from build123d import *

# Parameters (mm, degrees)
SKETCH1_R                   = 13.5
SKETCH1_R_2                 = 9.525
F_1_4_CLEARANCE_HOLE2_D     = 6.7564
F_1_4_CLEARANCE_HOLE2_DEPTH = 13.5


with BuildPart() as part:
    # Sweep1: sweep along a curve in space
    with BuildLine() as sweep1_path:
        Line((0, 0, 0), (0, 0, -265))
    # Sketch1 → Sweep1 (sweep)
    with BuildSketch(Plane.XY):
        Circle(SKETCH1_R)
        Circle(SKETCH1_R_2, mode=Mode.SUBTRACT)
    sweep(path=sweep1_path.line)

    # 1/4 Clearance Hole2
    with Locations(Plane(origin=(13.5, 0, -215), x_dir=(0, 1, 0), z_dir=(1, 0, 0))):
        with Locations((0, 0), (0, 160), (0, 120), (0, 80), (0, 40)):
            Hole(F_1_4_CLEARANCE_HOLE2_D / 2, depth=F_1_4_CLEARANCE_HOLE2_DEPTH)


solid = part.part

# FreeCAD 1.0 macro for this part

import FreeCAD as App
import Part
import Sketcher
from FreeCAD import Vector

doc = App.newDocument("Part")
body = doc.addObject("PartDesign::Body", "Body")

# Sketch on XY plane
sketch1 = doc.addObject("Sketcher::SketchObject", "Sketch")
body.addObject(sketch1)
sketch1.AttachmentSupport = (doc.XY_Plane, [""])
sketch1.MapMode = "FlatFace"
sketch1.addGeometry(Part.Circle(Vector(0, 0, 0), Vector(0, 0, 1), 14), False)
sketch1.addGeometry(Part.Circle(Vector(0, 0, 0), Vector(0, 0, 1), 10), False)
sketch1.addConstraint(Sketcher.Constraint("Coincident", 0, 3, -1, 1))
sketch1.addConstraint(Sketcher.Constraint("Coincident", 1, 3, -1, 1))
sketch1.addConstraint(Sketcher.Constraint("Diameter", 0, 27.0))
sketch1.addConstraint(Sketcher.Constraint("Diameter", 1, 19.05))

# Sketch on XZ plane
sketch2 = doc.addObject("Sketcher::SketchObject", "Sketch001")
body.addObject(sketch2)
sketch2.AttachmentSupport = (doc.XZ_Plane, [""])
sketch2.MapMode = "FlatFace"
sketch2.addGeometry(Part.LineSegment(Vector(0, 0, 0), Vector(0, -265, 0)), False)
sketch2.addConstraint(Sketcher.Constraint("Vertical", 0))
sketch2.addConstraint(Sketcher.Constraint("Coincident", 0, 1, -1, 1))
sketch2.addConstraint(Sketcher.Constraint("DistanceY", 0, 2, 0, 1, 265.0))
doc.recompute()

additivepipe = doc.addObject("PartDesign::AdditivePipe", "AdditivePipe")
body.addObject(additivepipe)
additivepipe.Profile = sketch1
additivepipe.Spine = (sketch2, ["Edge1"])

# Sketch on YZ plane
sketch3 = doc.addObject("Sketcher::SketchObject", "Sketch002")
body.addObject(sketch3)
sketch3.AttachmentSupport = (doc.YZ_Plane, [""])
sketch3.MapMode = "FlatFace"
sketch3.AttachmentOffset = App.Placement(Vector(0, 0, 13.5), App.Rotation())
sketch3.addGeometry(Part.Circle(Vector(0, -215, 0), Vector(0, 0, 1), 3.4), False)
sketch3.addGeometry(Part.Circle(Vector(0, -55, 0), Vector(0, 0, 1), 3.4), False)
sketch3.addGeometry(Part.Circle(Vector(0, -95, 0), Vector(0, 0, 1), 3.4), False)
sketch3.addGeometry(Part.Circle(Vector(0, -135, 0), Vector(0, 0, 1), 3.4), False)
sketch3.addGeometry(Part.Circle(Vector(0, -175, 0), Vector(0, 0, 1), 3.4), False)
sketch3.addConstraint(Sketcher.Constraint("Equal", 0, 1))
sketch3.addConstraint(Sketcher.Constraint("Equal", 1, 2))
sketch3.addConstraint(Sketcher.Constraint("Equal", 2, 3))
sketch3.addConstraint(Sketcher.Constraint("Equal", 3, 4))
sketch3.addConstraint(Sketcher.Constraint("PointOnObject", 0, 3, -2))
sketch3.addConstraint(Sketcher.Constraint("PointOnObject", 1, 3, -2))
sketch3.addConstraint(Sketcher.Constraint("PointOnObject", 2, 3, -2))
sketch3.addConstraint(Sketcher.Constraint("PointOnObject", 3, 3, -2))
sketch3.addConstraint(Sketcher.Constraint("PointOnObject", 4, 3, -2))
sketch3.addConstraint(Sketcher.Constraint("DistanceY", 0, 3, -1, 1, 215.0))
sketch3.addConstraint(Sketcher.Constraint("DistanceY", 1, 3, -1, 1, 55.0))
sketch3.addConstraint(Sketcher.Constraint("DistanceY", 2, 3, -1, 1, 95.0))
sketch3.addConstraint(Sketcher.Constraint("DistanceY", 3, 3, -1, 1, 135.0))
sketch3.addConstraint(Sketcher.Constraint("DistanceY", 4, 3, -1, 1, 175.0))
sketch3.addConstraint(Sketcher.Constraint("Diameter", 0, 6.7564))
doc.recompute()
hole = doc.addObject("PartDesign::Hole", "Hole")
body.addObject(hole)
hole.Profile = sketch3
hole.ThreadType = "None"
hole.Diameter = 6.7564
hole.DepthType = "Dimension"
hole.Depth = 13.5
hole.DrillPoint = "Flat"

doc.recompute()
